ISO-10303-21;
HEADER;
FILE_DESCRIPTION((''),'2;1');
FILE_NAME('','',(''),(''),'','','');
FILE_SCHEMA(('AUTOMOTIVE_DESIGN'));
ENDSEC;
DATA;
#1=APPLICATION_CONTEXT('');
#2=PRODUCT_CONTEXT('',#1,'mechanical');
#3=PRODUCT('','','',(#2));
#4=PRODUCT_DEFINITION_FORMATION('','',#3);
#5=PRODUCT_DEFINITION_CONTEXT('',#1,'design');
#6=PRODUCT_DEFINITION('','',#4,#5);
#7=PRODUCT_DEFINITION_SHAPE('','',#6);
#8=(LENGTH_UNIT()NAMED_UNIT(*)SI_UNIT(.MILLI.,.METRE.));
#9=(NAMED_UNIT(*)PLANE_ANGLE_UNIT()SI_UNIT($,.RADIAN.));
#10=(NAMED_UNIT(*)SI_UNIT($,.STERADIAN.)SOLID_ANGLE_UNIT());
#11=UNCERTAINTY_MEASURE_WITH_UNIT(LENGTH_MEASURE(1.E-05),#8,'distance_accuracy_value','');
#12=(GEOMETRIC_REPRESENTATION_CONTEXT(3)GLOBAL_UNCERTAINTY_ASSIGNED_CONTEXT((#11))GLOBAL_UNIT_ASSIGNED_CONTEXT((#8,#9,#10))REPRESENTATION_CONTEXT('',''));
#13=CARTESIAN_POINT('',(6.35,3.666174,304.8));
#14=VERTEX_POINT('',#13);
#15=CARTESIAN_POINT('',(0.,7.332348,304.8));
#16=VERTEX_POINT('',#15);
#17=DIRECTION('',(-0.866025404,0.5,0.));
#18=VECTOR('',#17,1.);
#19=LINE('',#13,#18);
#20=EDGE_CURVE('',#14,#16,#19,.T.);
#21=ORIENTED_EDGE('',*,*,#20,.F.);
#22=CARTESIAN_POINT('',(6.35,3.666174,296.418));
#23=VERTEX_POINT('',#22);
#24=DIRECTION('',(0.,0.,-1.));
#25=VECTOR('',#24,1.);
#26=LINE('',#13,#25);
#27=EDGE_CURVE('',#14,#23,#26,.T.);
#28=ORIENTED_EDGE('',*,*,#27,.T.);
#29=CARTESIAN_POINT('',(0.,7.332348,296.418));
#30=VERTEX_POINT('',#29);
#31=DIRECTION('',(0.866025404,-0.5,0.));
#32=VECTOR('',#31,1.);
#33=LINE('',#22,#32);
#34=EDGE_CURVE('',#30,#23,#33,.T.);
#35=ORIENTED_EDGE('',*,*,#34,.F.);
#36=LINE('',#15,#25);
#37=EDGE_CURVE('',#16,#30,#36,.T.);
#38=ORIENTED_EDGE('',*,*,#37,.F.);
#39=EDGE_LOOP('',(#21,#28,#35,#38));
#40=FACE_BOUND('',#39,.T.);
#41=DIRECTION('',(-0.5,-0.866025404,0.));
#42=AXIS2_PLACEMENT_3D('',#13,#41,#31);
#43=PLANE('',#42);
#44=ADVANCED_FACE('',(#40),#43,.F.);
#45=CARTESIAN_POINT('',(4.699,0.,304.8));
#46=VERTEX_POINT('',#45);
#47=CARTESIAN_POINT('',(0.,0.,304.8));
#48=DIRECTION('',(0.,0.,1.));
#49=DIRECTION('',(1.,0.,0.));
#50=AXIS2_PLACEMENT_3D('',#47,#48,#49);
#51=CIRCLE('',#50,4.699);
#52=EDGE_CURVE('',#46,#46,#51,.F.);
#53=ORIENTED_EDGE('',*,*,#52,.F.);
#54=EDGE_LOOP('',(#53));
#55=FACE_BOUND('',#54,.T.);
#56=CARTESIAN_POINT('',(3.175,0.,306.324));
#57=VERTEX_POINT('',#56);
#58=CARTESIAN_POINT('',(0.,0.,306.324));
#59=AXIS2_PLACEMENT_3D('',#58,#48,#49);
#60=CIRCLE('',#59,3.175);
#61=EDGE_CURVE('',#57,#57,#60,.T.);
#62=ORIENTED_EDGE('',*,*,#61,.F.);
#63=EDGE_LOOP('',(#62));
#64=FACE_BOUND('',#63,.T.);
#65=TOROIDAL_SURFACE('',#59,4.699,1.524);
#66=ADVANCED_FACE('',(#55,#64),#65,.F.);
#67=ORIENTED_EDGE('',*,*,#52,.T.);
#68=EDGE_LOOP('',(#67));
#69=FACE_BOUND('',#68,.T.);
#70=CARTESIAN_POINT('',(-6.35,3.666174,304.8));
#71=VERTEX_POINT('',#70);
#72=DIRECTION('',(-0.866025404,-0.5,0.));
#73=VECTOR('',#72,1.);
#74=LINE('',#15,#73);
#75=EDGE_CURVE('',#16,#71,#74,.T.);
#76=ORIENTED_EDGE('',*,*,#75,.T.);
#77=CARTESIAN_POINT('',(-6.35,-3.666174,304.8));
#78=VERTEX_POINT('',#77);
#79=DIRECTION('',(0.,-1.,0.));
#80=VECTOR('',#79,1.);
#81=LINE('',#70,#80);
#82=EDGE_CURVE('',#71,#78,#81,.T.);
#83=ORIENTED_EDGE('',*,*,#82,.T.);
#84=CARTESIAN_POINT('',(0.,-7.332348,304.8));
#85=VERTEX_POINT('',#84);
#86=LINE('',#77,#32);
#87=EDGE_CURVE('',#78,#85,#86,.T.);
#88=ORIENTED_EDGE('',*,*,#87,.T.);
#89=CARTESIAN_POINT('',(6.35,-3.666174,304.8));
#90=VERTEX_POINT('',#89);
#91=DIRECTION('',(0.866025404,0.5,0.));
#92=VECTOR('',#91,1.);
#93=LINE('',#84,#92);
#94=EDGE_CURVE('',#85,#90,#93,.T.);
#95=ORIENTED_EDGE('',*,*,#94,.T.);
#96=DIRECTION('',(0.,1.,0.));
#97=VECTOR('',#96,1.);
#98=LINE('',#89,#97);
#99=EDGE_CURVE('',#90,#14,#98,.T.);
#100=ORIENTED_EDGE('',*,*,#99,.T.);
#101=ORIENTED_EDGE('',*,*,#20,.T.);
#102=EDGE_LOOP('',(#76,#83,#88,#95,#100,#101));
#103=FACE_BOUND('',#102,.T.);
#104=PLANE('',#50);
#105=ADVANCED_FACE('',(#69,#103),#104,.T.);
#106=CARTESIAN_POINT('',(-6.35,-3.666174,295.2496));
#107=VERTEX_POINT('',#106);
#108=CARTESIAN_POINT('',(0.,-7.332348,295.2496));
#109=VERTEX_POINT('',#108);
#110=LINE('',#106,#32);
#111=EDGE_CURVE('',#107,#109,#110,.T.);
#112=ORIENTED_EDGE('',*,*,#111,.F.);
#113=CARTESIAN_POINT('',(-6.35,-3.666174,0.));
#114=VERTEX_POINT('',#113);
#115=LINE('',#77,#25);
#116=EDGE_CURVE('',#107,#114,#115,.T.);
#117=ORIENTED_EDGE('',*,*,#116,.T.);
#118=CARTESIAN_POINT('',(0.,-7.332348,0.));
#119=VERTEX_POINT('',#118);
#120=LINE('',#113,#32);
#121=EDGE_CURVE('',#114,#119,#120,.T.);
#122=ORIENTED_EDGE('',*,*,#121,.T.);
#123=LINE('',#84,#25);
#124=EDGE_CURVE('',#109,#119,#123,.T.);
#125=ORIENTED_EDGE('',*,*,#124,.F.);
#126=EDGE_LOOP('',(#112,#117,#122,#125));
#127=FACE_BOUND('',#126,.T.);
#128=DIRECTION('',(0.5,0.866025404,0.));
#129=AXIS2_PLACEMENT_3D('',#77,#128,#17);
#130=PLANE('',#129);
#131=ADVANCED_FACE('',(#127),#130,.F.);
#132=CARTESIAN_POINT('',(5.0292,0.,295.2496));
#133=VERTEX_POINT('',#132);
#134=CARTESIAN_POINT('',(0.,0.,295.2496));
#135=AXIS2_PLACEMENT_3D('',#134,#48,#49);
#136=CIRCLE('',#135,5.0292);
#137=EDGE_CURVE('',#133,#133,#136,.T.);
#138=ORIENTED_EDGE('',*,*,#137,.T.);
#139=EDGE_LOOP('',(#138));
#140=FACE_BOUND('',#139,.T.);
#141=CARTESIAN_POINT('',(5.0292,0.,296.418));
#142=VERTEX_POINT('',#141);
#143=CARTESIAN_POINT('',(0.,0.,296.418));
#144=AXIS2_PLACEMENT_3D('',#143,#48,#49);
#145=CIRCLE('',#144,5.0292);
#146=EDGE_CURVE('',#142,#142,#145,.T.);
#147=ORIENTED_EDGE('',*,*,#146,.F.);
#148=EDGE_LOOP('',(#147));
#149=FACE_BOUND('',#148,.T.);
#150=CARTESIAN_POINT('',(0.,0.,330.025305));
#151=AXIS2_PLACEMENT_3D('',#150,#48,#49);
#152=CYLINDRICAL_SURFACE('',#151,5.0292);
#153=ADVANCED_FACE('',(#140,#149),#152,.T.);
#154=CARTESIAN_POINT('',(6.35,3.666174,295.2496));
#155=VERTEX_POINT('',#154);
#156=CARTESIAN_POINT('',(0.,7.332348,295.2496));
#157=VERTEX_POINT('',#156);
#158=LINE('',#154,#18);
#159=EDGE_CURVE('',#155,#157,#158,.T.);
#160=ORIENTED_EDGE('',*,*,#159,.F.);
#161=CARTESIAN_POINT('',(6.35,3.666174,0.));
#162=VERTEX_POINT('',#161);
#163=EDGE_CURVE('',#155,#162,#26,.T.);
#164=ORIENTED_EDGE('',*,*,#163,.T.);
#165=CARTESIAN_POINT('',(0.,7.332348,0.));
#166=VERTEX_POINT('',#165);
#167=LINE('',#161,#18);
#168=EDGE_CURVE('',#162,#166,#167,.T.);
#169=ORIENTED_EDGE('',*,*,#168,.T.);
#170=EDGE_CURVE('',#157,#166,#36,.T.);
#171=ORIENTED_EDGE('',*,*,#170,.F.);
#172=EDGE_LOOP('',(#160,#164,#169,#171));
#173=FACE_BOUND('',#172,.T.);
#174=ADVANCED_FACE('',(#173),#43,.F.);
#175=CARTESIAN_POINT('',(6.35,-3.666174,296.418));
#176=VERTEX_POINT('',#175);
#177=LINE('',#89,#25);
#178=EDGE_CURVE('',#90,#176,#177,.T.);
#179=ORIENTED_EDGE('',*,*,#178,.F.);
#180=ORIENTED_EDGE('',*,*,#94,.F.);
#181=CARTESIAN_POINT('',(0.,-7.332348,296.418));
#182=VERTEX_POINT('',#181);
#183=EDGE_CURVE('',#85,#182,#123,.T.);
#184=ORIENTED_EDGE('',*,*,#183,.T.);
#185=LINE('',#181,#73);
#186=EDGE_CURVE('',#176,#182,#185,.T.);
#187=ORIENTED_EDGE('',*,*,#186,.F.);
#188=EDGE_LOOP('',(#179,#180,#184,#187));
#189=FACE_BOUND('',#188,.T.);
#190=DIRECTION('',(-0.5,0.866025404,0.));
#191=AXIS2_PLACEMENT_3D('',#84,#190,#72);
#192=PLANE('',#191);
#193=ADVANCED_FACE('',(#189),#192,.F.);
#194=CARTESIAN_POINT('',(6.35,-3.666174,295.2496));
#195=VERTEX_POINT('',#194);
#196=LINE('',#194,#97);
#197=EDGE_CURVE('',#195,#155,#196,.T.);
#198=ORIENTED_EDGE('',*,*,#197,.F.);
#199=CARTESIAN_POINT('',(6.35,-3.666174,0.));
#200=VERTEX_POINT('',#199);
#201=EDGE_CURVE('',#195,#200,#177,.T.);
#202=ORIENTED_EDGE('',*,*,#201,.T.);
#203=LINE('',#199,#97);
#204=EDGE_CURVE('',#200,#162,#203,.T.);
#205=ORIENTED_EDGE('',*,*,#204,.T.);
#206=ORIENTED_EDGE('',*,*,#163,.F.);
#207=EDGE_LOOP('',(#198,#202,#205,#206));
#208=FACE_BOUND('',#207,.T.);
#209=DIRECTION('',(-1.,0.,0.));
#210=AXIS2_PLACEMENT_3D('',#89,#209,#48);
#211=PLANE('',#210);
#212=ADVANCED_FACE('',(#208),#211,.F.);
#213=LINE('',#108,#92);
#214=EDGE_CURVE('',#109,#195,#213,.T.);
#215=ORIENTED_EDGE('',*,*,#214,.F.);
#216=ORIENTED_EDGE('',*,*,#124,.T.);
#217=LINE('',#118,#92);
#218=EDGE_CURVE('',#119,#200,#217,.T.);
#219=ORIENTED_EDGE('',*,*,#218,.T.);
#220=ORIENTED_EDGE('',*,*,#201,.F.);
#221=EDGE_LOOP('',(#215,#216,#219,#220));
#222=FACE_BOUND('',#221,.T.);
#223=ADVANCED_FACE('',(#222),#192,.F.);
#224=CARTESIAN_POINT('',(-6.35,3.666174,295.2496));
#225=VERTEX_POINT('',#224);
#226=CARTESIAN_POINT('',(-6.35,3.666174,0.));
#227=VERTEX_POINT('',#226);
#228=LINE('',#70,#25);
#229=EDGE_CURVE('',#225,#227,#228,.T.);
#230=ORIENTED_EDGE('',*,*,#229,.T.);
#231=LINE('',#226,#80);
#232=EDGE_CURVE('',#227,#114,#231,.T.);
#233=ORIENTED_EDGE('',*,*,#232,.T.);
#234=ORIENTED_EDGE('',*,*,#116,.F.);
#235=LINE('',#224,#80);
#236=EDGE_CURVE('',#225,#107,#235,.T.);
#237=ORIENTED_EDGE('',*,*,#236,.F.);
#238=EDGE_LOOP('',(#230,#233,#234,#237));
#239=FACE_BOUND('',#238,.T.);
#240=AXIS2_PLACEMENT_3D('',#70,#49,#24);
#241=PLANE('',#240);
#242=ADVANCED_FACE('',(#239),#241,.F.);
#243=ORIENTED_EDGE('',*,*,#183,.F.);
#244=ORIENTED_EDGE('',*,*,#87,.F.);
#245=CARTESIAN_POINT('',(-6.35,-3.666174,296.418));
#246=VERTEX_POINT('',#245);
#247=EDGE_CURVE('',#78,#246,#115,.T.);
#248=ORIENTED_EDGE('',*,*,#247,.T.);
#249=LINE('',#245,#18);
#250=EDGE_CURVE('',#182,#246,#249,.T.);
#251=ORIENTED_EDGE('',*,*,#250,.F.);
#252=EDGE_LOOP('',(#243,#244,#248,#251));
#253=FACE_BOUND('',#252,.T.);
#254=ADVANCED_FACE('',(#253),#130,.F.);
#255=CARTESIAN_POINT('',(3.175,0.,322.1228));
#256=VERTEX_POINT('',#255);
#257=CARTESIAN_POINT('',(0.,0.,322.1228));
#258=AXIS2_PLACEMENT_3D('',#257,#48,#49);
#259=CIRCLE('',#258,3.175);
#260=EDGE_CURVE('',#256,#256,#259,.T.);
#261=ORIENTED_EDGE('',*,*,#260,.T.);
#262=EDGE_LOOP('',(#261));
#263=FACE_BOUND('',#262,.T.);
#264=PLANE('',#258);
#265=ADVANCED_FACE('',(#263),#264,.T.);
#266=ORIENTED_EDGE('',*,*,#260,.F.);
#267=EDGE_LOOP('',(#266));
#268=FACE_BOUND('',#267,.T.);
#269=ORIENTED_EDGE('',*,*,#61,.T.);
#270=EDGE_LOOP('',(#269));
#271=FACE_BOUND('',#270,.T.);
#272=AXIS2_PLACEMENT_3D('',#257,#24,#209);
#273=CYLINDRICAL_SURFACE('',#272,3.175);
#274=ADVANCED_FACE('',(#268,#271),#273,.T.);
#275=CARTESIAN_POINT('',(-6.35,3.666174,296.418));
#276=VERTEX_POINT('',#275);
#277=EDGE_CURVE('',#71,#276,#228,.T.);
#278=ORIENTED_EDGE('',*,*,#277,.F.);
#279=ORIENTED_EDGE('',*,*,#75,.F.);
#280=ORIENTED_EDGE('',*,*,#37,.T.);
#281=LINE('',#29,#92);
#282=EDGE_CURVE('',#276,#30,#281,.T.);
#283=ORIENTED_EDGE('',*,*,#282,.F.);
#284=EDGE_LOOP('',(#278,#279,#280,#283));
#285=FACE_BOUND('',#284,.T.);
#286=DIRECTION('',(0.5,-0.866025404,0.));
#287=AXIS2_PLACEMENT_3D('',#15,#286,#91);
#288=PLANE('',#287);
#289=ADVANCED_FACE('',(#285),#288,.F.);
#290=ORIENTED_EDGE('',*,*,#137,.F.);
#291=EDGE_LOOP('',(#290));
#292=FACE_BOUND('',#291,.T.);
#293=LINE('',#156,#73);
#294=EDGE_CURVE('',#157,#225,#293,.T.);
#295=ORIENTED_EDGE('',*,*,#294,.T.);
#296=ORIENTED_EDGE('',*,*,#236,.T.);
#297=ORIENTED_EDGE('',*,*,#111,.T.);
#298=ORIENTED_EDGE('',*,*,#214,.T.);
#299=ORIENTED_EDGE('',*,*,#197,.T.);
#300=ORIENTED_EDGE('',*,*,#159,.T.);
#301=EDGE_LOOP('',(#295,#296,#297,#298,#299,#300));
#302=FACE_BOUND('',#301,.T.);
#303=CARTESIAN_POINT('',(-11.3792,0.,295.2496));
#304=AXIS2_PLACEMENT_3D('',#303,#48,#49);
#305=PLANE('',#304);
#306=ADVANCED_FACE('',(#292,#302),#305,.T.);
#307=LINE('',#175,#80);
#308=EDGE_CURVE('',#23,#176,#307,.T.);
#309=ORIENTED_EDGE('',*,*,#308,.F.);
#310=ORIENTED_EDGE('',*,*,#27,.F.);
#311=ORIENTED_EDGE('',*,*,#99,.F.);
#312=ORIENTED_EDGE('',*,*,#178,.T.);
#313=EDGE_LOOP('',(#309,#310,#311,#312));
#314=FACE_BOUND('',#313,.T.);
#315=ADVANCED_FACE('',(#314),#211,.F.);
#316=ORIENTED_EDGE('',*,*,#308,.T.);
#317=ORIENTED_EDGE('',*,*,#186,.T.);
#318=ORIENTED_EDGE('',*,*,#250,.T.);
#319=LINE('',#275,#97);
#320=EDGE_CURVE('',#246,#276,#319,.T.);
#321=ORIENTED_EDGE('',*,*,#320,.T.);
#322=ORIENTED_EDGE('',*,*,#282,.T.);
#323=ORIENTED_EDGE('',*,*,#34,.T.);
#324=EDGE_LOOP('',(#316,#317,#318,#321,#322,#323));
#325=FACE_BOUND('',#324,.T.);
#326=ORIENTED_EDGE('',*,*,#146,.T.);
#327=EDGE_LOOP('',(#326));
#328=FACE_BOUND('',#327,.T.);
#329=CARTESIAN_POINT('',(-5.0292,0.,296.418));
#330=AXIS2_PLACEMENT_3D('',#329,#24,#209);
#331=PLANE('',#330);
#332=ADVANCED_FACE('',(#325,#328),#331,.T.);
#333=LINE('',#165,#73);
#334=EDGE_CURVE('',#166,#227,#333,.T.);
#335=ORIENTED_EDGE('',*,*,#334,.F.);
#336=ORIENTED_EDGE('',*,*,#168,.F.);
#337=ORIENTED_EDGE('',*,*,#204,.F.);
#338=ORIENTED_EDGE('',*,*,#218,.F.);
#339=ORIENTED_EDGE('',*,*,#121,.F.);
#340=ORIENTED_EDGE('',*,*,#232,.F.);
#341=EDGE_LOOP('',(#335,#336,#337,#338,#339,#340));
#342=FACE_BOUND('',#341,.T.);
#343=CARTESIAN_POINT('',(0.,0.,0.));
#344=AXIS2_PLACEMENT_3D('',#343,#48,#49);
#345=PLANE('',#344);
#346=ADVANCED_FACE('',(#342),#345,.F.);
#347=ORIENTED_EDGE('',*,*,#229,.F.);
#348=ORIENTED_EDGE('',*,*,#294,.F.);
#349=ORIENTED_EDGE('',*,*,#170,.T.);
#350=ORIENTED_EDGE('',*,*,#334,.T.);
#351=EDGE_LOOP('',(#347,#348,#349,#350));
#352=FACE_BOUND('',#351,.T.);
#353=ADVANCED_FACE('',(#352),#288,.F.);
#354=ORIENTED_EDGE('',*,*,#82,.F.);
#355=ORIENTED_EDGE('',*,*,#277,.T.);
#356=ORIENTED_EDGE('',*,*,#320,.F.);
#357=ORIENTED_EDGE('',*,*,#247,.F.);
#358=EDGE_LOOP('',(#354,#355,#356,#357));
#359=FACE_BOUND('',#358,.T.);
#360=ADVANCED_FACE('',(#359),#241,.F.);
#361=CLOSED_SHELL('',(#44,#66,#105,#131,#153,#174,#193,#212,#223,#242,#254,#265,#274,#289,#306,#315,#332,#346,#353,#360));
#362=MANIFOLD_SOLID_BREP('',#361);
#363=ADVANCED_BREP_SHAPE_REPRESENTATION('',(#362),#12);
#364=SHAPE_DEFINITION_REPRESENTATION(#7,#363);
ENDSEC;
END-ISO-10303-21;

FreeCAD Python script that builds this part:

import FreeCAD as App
import Part
import Sketcher
from FreeCAD import Vector
Q = App.Units.Quantity


def edges_at(feature, points):
    """Names of the edges that pass closest to the given points."""
    edges = feature.Shape.Edges
    near = lambda p: min(range(len(edges)), key=lambda i: edges[i].distToShape(Part.Vertex(*p))[0])
    return sorted({f"Edge{near(p) + 1}" for p in points})


def add_polygon(sketch, points):
    """Adds a closed chain of lines whose ends are joined by coincident constraints."""
    first, n = sketch.GeometryCount, len(points)
    for a, b in zip(points, points[1:] + points[:1]):
        sketch.addGeometry(Part.LineSegment(App.Vector(*a, 0), App.Vector(*b, 0)), False)
    for i in range(n):
        sketch.addConstraint(Sketcher.Constraint("Coincident", first + i, 2, first + (i + 1) % n, 1))

doc = App.newDocument("Part")
body = doc.addObject("PartDesign::Body", "Body")

sketch1 = body.newObject("Sketcher::SketchObject", "Sketch")
sketch1.AttachmentSupport = (doc.getObject("XY_Plane"), [""])
sketch1.MapMode = "FlatFace"
add_polygon(sketch1, [(-6.35, 3.666174), (-6.35, -3.666174), (0, -7.332348), (6.35, -3.666174), (6.35, 3.666174), (0, 7.332348)])
sketch1.addConstraint(Sketcher.Constraint("Vertical", 0))
sketch1.addConstraint(Sketcher.Constraint("Vertical", 3))
sketch1.addConstraint(Sketcher.Constraint("Symmetric", 0, 2, 3, 2, -1, 1))
sketch1.addConstraint(Sketcher.Constraint("Symmetric", 1, 2, 4, 2, -1, 1))
sketch1.addConstraint(Sketcher.Constraint("PointOnObject", 1, 2, -2))
sketch1.addConstraint(Sketcher.Constraint("Parallel", 2, 5))
sketch1.addConstraint(Sketcher.Constraint("Horizontal", 0, 2, 2, 2))
sketch1.addConstraint(Sketcher.Constraint("Angle", 1, Q("-30 deg")))
sketch1.addConstraint(Sketcher.Constraint("DistanceX", 0, 2, 2, 2, Q("0.5 in")))
sketch1.addConstraint(Sketcher.Constraint("DistanceY", 0, 2, 0, 1, 7.332348))
pad1 = body.newObject("PartDesign::Pad", "Pad")
pad1.Profile = sketch1
pad1.Length = Q("12 in")

sketch2 = body.newObject("Sketcher::SketchObject", "Sketch001")
sketch2.AttachmentSupport = (doc.getObject("XY_Plane"), [""])
sketch2.MapMode = "FlatFace"
sketch2.AttachmentOffset = App.Placement(Vector(0, 0, 12 * 25.4), App.Rotation())
sketch2.addGeometry(Part.Circle(Vector(0, 0, 0), Vector(0, 0, 1), 3.175), False)
sketch2.addConstraint(Sketcher.Constraint("Coincident", 0, 3, -1, 1))
sketch2.addConstraint(Sketcher.Constraint("Diameter", 0, Q("0.25 in")))
pad2 = body.newObject("PartDesign::Pad", "Pad001")
pad2.Profile = sketch2
pad2.Length = Q("0.682 in")
doc.recompute()

fillet = body.newObject("PartDesign::Fillet", "Fillet")
fillet.Base = (pad2, edges_at(pad2, [(-3.175, 0, 304.8)]))
fillet.Radius = Q("0.06 in")

sketch3 = body.newObject("Sketcher::SketchObject", "Sketch002")
sketch3.AttachmentSupport = (doc.getObject("XZ_Plane"), [""])
sketch3.MapMode = "FlatFace"
add_polygon(sketch3, [(-11.3792, 295.2496), (-11.3792, 296.418), (-5.0292, 296.418), (-5.0292, 295.2496)])
sketch3.addConstraint(Sketcher.Constraint("Vertical", 0))
sketch3.addConstraint(Sketcher.Constraint("Horizontal", 1))
sketch3.addConstraint(Sketcher.Constraint("Vertical", 2))
sketch3.addConstraint(Sketcher.Constraint("Horizontal", 3))
sketch3.addConstraint(Sketcher.Constraint("DistanceX", 1, 1, 1, 2, Q("0.25 in")))
sketch3.addConstraint(Sketcher.Constraint("DistanceY", 0, 1, 0, 2, Q("0.046 in")))
sketch3.addConstraint(Sketcher.Constraint("DistanceY", -1, 1, 0, 2, Q("11.67 in")))
sketch3.addConstraint(Sketcher.Constraint("DistanceX", 0, 2, -1, 1, Q("0.448 in")))
groove = body.newObject("PartDesign::Groove", "Groove")
groove.Profile = sketch3
groove.ReferenceAxis = (sketch3, ["V_Axis"])
groove.Angle = 360

doc.recompute()
